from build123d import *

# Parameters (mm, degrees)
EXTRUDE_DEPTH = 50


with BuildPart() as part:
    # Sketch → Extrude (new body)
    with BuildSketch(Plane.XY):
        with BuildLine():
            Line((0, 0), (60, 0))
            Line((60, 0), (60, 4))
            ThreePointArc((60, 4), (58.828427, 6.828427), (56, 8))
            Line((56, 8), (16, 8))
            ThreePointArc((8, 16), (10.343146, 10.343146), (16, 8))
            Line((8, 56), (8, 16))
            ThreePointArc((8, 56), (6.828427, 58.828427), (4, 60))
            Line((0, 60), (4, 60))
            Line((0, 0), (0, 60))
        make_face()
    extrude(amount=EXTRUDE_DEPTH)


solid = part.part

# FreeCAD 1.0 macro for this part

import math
import FreeCAD as App
import Part
import Sketcher

V = App.Vector
Q = App.Units.Quantity

doc = App.newDocument("Part")
body = doc.addObject("PartDesign::Body", "Body")

# Sketch on XY plane
sketch1 = body.newObject("Sketcher::SketchObject", "Sketch")
sketch1.AttachmentSupport = (doc.getObject("XY_Plane"), [""])
sketch1.MapMode = "FlatFace"
sketch1.addGeometry([
    Part.LineSegment(V(0, 0, 0), V(60, 0, 0)),  # 0
    Part.LineSegment(V(60, 0, 0), V(60, 4, 0)),  # 1
    Part.ArcOfCircle(Part.Circle(V(56, 4, 0), V(0, 0, 1), 4), math.radians(0), math.radians(90)),  # 2
    Part.LineSegment(V(56, 8, 0), V(16, 8, 0)),  # 3
    Part.ArcOfCircle(Part.Circle(V(16, 16, 0), V(0, 0, 1), 8), math.radians(-180), math.radians(-90)),  # 4
    Part.LineSegment(V(8, 16, 0), V(8, 56, 0)),  # 5
    Part.ArcOfCircle(Part.Circle(V(4, 56, 0), V(0, 0, 1), 4), math.radians(0), math.radians(90)),  # 6
    Part.LineSegment(V(4, 60, 0), V(0, 60, 0)),  # 7
    Part.LineSegment(V(0, 60, 0), V(0, 0, 0)),  # 8
], False)
sketch1.addConstraint([
    Sketcher.Constraint("Coincident", 0, 2, 1, 1),
    Sketcher.Constraint("Tangent", 1, 2, 2, 1),
    Sketcher.Constraint("Tangent", 2, 2, 3, 1),
    Sketcher.Constraint("Tangent", 3, 2, 4, 2),
    Sketcher.Constraint("Tangent", 4, 1, 5, 1),
    Sketcher.Constraint("Tangent", 5, 2, 6, 1),
    Sketcher.Constraint("Tangent", 6, 2, 7, 1),
    Sketcher.Constraint("Coincident", 7, 2, 8, 1),
    Sketcher.Constraint("Coincident", 8, 2, 0, 1),
    Sketcher.Constraint("Horizontal", 0),
    Sketcher.Constraint("Vertical", 1),
    Sketcher.Constraint("Horizontal", 3),
    Sketcher.Constraint("Vertical", 5),
    Sketcher.Constraint("Horizontal", 7),
    Sketcher.Constraint("Vertical", 8),
    Sketcher.Constraint("Coincident", 8, 2, -1, 1),
    Sketcher.Constraint("Equal", 2, 6),
    Sketcher.Constraint("Equal", 7, 1),
    Sketcher.Constraint("Equal", 3, 5),
    Sketcher.Constraint("Radius", 2, Q("4 mm")),
    Sketcher.Constraint("Radius", 4, Q("8.000001 mm")),
    Sketcher.Constraint("DistanceX", 0, 1, 0, 2, Q("60 mm")),
    Sketcher.Constraint("DistanceX", 3, 2, 3, 1, Q("40 mm")),
])
pad1 = body.newObject("PartDesign::Pad", "Pad")
pad1.Profile = sketch1
pad1.Length = 50

doc.recompute()
